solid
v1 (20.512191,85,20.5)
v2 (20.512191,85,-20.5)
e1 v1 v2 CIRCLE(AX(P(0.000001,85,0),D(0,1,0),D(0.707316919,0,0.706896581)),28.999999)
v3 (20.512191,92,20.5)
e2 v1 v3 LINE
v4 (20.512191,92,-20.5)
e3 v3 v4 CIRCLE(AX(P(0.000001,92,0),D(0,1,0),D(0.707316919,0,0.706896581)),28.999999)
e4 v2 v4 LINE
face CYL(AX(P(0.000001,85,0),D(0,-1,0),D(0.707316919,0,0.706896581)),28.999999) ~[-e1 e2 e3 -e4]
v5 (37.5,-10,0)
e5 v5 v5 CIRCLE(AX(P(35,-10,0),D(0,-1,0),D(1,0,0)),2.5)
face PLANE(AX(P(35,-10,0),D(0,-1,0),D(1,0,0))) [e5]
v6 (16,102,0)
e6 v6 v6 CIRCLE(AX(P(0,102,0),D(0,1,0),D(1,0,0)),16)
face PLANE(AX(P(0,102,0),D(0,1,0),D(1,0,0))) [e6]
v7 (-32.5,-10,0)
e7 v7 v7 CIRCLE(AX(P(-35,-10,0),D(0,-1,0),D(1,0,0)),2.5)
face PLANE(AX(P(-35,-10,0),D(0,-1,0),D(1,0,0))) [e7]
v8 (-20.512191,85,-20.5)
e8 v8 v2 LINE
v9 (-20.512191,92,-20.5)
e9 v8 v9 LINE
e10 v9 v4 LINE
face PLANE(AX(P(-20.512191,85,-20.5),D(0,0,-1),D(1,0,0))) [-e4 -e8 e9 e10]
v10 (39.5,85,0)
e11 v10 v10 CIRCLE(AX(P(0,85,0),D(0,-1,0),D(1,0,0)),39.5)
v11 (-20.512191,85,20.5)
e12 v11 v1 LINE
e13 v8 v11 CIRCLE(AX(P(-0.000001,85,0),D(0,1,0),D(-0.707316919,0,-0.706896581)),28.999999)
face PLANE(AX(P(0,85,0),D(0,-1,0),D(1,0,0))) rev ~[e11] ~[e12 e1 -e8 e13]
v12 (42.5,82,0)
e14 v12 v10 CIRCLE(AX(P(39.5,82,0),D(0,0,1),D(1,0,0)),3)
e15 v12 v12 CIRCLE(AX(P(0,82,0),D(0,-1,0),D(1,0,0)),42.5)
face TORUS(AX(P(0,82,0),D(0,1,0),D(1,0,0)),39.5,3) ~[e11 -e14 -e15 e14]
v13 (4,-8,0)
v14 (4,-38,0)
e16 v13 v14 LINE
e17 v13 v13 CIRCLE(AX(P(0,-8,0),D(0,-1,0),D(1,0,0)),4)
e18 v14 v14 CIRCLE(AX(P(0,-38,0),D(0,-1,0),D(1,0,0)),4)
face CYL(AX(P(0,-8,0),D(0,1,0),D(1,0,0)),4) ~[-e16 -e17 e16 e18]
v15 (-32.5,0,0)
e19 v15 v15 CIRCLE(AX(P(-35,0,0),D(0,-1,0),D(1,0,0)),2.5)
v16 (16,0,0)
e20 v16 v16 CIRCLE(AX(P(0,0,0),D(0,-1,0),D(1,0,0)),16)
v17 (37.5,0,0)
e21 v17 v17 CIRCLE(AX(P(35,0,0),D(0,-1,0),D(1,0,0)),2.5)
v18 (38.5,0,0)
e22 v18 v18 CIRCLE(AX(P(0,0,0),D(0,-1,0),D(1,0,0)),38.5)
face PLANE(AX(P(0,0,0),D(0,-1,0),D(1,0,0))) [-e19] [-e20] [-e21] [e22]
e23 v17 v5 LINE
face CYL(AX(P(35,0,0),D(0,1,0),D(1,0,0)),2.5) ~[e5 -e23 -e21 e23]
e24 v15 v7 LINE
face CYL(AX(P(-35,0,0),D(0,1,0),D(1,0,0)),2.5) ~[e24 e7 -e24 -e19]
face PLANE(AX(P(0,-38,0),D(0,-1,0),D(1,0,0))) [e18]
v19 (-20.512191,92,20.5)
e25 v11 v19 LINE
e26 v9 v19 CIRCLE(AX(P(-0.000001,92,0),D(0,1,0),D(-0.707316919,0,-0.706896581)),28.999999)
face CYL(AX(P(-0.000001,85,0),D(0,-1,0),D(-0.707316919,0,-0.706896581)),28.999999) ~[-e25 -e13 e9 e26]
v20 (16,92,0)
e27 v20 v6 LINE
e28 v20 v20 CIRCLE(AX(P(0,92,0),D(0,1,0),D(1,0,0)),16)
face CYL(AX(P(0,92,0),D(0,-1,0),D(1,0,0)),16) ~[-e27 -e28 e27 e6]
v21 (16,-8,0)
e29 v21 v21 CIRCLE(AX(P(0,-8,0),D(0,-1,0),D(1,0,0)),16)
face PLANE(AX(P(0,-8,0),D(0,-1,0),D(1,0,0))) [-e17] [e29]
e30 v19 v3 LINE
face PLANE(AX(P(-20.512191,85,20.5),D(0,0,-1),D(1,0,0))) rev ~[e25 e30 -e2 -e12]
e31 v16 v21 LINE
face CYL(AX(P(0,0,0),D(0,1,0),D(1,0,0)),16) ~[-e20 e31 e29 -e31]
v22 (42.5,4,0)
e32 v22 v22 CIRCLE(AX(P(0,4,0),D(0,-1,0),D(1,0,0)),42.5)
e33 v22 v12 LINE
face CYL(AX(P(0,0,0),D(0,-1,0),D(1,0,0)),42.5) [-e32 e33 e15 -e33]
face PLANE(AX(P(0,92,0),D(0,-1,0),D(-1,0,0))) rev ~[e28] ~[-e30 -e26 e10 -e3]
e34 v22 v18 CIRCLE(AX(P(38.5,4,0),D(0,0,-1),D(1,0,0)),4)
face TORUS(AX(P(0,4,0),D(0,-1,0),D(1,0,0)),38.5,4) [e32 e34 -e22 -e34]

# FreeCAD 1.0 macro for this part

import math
import FreeCAD as App
import Part
import Sketcher
from FreeCAD import Vector
Q = App.Units.Quantity


def edges_at(feature, points):
    """Names of the edges that pass closest to the given points."""
    edges = feature.Shape.Edges
    near = lambda p: min(range(len(edges)), key=lambda i: edges[i].distToShape(Part.Vertex(*p))[0])
    return sorted({f"Edge{near(p) + 1}" for p in points})

doc = App.newDocument("Part")
params = doc.addObject("Spreadsheet::Sheet", "Params")
for row, (alias, value) in enumerate([
    ("sketch1_diameter", "85 mm"),
    ("pad1_length", "85 mm"),
    ("fillet_radius", "4 mm"),
    ("fillet2_radius", "3 mm"),
    ("sketch2_diameter", "32 mm"),
    ("pad2_length", "8 mm"),
    ("sketch3_diameter", "8 mm"),
    ("pad3_length", "30 mm"),
    ("sketch4_diameter", "5 mm"),
    ("pad4_length", "10 mm"),
    ("sketch5_radius", "28.999999 mm"),
    ("pad5_length", "7 mm"),
    ("sketch6_diameter", "32 mm"),
    ("pad6_length", "10 mm"),
], start=1):
    params.set(f"A{row}", alias)
    params.set(f"B{row}", "=" + value)
    params.setAlias(f"B{row}", alias)

body = doc.addObject("PartDesign::Body", "Body")

# Sketch on XZ plane
sketch1 = body.newObject("Sketcher::SketchObject", "Sketch")
sketch1.AttachmentSupport = (doc.getObject("XZ_Plane"), [""])
sketch1.MapMode = "FlatFace"
sketch1.addGeometry(Part.Circle(Vector(0, 0, 0), Vector(0, 0, 1), 42), False)
sketch1.addConstraint(Sketcher.Constraint("Coincident", 0, 3, -1, 1))
sketch1.addConstraint(Sketcher.Constraint("Diameter", 0, Q("85 mm")))
sketch1.setExpression("Constraints[1]", "Params.sketch1_diameter")
pad1 = body.newObject("PartDesign::Pad", "Pad")
pad1.Profile = sketch1
pad1.setExpression("Length", "Params.pad1_length")
pad1.Reversed = True
doc.recompute()

fillet = body.newObject("PartDesign::Fillet", "Fillet")
fillet.Base = (pad1, edges_at(pad1, [(-42.5, 0, 0)]))
fillet.setExpression("Radius", "Params.fillet_radius")
doc.recompute()

fillet2 = body.newObject("PartDesign::Fillet", "Fillet001")
fillet2.Base = (fillet, edges_at(fillet, [(-42.5, 85, 0)]))
fillet2.setExpression("Radius", "Params.fillet2_radius")

# Sketch on XZ plane
sketch2 = body.newObject("Sketcher::SketchObject", "Sketch001")
sketch2.AttachmentSupport = (doc.getObject("XZ_Plane"), [""])
sketch2.MapMode = "FlatFace"
sketch2.addGeometry(Part.Circle(Vector(0, 0, 0), Vector(0, 0, 1), 16), False)
sketch2.addConstraint(Sketcher.Constraint("Coincident", 0, 3, -1, 1))
sketch2.addConstraint(Sketcher.Constraint("Diameter", 0, Q("32 mm")))
sketch2.setExpression("Constraints[1]", "Params.sketch2_diameter")
pad2 = body.newObject("PartDesign::Pad", "Pad001")
pad2.Profile = sketch2
pad2.setExpression("Length", "Params.pad2_length")

# Sketch on XZ plane
sketch3 = body.newObject("Sketcher::SketchObject", "Sketch002")
sketch3.AttachmentSupport = (doc.getObject("XZ_Plane"), [""])
sketch3.MapMode = "FlatFace"
sketch3.AttachmentOffset = App.Placement(Vector(0, 0, 8), App.Rotation())
sketch3.addGeometry(Part.Circle(Vector(0, 0, 0), Vector(0, 0, 1), 4), False)
sketch3.addConstraint(Sketcher.Constraint("Coincident", 0, 3, -1, 1))
sketch3.addConstraint(Sketcher.Constraint("Diameter", 0, Q("8 mm")))
sketch3.setExpression("Constraints[1]", "Params.sketch3_diameter")
pad3 = body.newObject("PartDesign::Pad", "Pad002")
pad3.Profile = sketch3
pad3.setExpression("Length", "Params.pad3_length")

# Sketch on XZ plane
sketch4 = body.newObject("Sketcher::SketchObject", "Sketch003")
sketch4.AttachmentSupport = (doc.getObject("XZ_Plane"), [""])
sketch4.MapMode = "FlatFace"
sketch4.addGeometry(Part.Circle(Vector(-35, 0, 0), Vector(0, 0, 1), 2.5), False)
sketch4.addGeometry(Part.Circle(Vector(35, 0, 0), Vector(0, 0, 1), 2.5), False)
sketch4.addConstraint(Sketcher.Constraint("Equal", 0, 1))
sketch4.addConstraint(Sketcher.Constraint("Symmetric", 0, 3, 1, 3, -1, 1))
sketch4.addConstraint(Sketcher.Constraint("PointOnObject", 0, 3, -1))
sketch4.addConstraint(Sketcher.Constraint("Diameter", 0, Q("5 mm")))
sketch4.addConstraint(Sketcher.Constraint("DistanceX", 0, 3, -1, 1, Q("35 mm")))
sketch4.setExpression("Constraints[3]", "Params.sketch4_diameter")
pad4 = body.newObject("PartDesign::Pad", "Pad003")
pad4.Profile = sketch4
pad4.setExpression("Length", "Params.pad4_length")

# Sketch on XZ plane
sketch5 = body.newObject("Sketcher::SketchObject", "Sketch004")
sketch5.AttachmentSupport = (doc.getObject("XZ_Plane"), [""])
sketch5.MapMode = "FlatFace"
sketch5.AttachmentOffset = App.Placement(Vector(0, 0, -85), App.Rotation())
sketch5.addGeometry(Part.LineSegment(Vector(21, -20, 0), Vector(-21, -20, 0)), False)
sketch5.addGeometry(Part.ArcOfCircle(Part.Circle(Vector(0, 0, 0), Vector(0, 0, 1), 29), math.radians(135), math.radians(225)), False)
sketch5.addGeometry(Part.LineSegment(Vector(-21, 20, 0), Vector(21, 20, 0)), False)
sketch5.addGeometry(Part.ArcOfCircle(Part.Circle(Vector(0, 0, 0), Vector(0, 0, 1), 29), math.radians(-45), math.radians(45)), False)
sketch5.addConstraint(Sketcher.Constraint("Coincident", 0, 2, 1, 2))
sketch5.addConstraint(Sketcher.Constraint("Coincident", 1, 1, 2, 1))
sketch5.addConstraint(Sketcher.Constraint("Coincident", 2, 2, 3, 2))
sketch5.addConstraint(Sketcher.Constraint("Coincident", 3, 1, 0, 1))
sketch5.addConstraint(Sketcher.Constraint("Horizontal", 0))
sketch5.addConstraint(Sketcher.Constraint("Horizontal", 2))
sketch5.addConstraint(Sketcher.Constraint("Coincident", 1, 3, -1, 1))
sketch5.addConstraint(Sketcher.Constraint("Coincident", 3, 3, -1, 1))
sketch5.addConstraint(Sketcher.Constraint("Equal", 1, 3))
sketch5.addConstraint(Sketcher.Constraint("Vertical", 0, 2, 1, 1))
sketch5.addConstraint(Sketcher.Constraint("Radius", 1, Q("28.999999 mm")))
sketch5.addConstraint(Sketcher.Constraint("DistanceY", 0, 2, 1, 1, Q("41 mm")))
sketch5.setExpression("Constraints[10]", "Params.sketch5_radius")
pad5 = body.newObject("PartDesign::Pad", "Pad004")
pad5.Profile = sketch5
pad5.setExpression("Length", "Params.pad5_length")
pad5.Reversed = True

# Sketch on XZ plane
sketch6 = body.newObject("Sketcher::SketchObject", "Sketch005")
sketch6.AttachmentSupport = (doc.getObject("XZ_Plane"), [""])
sketch6.MapMode = "FlatFace"
sketch6.AttachmentOffset = App.Placement(Vector(0, 0, -92), App.Rotation())
sketch6.addGeometry(Part.Circle(Vector(0, 0, 0), Vector(0, 0, 1), 16), False)
sketch6.addConstraint(Sketcher.Constraint("Coincident", 0, 3, -1, 1))
sketch6.addConstraint(Sketcher.Constraint("Diameter", 0, Q("32 mm")))
sketch6.setExpression("Constraints[1]", "Params.sketch6_diameter")
pad6 = body.newObject("PartDesign::Pad", "Pad005")
pad6.Profile = sketch6
pad6.setExpression("Length", "Params.pad6_length")
pad6.Reversed = True

doc.recompute()
